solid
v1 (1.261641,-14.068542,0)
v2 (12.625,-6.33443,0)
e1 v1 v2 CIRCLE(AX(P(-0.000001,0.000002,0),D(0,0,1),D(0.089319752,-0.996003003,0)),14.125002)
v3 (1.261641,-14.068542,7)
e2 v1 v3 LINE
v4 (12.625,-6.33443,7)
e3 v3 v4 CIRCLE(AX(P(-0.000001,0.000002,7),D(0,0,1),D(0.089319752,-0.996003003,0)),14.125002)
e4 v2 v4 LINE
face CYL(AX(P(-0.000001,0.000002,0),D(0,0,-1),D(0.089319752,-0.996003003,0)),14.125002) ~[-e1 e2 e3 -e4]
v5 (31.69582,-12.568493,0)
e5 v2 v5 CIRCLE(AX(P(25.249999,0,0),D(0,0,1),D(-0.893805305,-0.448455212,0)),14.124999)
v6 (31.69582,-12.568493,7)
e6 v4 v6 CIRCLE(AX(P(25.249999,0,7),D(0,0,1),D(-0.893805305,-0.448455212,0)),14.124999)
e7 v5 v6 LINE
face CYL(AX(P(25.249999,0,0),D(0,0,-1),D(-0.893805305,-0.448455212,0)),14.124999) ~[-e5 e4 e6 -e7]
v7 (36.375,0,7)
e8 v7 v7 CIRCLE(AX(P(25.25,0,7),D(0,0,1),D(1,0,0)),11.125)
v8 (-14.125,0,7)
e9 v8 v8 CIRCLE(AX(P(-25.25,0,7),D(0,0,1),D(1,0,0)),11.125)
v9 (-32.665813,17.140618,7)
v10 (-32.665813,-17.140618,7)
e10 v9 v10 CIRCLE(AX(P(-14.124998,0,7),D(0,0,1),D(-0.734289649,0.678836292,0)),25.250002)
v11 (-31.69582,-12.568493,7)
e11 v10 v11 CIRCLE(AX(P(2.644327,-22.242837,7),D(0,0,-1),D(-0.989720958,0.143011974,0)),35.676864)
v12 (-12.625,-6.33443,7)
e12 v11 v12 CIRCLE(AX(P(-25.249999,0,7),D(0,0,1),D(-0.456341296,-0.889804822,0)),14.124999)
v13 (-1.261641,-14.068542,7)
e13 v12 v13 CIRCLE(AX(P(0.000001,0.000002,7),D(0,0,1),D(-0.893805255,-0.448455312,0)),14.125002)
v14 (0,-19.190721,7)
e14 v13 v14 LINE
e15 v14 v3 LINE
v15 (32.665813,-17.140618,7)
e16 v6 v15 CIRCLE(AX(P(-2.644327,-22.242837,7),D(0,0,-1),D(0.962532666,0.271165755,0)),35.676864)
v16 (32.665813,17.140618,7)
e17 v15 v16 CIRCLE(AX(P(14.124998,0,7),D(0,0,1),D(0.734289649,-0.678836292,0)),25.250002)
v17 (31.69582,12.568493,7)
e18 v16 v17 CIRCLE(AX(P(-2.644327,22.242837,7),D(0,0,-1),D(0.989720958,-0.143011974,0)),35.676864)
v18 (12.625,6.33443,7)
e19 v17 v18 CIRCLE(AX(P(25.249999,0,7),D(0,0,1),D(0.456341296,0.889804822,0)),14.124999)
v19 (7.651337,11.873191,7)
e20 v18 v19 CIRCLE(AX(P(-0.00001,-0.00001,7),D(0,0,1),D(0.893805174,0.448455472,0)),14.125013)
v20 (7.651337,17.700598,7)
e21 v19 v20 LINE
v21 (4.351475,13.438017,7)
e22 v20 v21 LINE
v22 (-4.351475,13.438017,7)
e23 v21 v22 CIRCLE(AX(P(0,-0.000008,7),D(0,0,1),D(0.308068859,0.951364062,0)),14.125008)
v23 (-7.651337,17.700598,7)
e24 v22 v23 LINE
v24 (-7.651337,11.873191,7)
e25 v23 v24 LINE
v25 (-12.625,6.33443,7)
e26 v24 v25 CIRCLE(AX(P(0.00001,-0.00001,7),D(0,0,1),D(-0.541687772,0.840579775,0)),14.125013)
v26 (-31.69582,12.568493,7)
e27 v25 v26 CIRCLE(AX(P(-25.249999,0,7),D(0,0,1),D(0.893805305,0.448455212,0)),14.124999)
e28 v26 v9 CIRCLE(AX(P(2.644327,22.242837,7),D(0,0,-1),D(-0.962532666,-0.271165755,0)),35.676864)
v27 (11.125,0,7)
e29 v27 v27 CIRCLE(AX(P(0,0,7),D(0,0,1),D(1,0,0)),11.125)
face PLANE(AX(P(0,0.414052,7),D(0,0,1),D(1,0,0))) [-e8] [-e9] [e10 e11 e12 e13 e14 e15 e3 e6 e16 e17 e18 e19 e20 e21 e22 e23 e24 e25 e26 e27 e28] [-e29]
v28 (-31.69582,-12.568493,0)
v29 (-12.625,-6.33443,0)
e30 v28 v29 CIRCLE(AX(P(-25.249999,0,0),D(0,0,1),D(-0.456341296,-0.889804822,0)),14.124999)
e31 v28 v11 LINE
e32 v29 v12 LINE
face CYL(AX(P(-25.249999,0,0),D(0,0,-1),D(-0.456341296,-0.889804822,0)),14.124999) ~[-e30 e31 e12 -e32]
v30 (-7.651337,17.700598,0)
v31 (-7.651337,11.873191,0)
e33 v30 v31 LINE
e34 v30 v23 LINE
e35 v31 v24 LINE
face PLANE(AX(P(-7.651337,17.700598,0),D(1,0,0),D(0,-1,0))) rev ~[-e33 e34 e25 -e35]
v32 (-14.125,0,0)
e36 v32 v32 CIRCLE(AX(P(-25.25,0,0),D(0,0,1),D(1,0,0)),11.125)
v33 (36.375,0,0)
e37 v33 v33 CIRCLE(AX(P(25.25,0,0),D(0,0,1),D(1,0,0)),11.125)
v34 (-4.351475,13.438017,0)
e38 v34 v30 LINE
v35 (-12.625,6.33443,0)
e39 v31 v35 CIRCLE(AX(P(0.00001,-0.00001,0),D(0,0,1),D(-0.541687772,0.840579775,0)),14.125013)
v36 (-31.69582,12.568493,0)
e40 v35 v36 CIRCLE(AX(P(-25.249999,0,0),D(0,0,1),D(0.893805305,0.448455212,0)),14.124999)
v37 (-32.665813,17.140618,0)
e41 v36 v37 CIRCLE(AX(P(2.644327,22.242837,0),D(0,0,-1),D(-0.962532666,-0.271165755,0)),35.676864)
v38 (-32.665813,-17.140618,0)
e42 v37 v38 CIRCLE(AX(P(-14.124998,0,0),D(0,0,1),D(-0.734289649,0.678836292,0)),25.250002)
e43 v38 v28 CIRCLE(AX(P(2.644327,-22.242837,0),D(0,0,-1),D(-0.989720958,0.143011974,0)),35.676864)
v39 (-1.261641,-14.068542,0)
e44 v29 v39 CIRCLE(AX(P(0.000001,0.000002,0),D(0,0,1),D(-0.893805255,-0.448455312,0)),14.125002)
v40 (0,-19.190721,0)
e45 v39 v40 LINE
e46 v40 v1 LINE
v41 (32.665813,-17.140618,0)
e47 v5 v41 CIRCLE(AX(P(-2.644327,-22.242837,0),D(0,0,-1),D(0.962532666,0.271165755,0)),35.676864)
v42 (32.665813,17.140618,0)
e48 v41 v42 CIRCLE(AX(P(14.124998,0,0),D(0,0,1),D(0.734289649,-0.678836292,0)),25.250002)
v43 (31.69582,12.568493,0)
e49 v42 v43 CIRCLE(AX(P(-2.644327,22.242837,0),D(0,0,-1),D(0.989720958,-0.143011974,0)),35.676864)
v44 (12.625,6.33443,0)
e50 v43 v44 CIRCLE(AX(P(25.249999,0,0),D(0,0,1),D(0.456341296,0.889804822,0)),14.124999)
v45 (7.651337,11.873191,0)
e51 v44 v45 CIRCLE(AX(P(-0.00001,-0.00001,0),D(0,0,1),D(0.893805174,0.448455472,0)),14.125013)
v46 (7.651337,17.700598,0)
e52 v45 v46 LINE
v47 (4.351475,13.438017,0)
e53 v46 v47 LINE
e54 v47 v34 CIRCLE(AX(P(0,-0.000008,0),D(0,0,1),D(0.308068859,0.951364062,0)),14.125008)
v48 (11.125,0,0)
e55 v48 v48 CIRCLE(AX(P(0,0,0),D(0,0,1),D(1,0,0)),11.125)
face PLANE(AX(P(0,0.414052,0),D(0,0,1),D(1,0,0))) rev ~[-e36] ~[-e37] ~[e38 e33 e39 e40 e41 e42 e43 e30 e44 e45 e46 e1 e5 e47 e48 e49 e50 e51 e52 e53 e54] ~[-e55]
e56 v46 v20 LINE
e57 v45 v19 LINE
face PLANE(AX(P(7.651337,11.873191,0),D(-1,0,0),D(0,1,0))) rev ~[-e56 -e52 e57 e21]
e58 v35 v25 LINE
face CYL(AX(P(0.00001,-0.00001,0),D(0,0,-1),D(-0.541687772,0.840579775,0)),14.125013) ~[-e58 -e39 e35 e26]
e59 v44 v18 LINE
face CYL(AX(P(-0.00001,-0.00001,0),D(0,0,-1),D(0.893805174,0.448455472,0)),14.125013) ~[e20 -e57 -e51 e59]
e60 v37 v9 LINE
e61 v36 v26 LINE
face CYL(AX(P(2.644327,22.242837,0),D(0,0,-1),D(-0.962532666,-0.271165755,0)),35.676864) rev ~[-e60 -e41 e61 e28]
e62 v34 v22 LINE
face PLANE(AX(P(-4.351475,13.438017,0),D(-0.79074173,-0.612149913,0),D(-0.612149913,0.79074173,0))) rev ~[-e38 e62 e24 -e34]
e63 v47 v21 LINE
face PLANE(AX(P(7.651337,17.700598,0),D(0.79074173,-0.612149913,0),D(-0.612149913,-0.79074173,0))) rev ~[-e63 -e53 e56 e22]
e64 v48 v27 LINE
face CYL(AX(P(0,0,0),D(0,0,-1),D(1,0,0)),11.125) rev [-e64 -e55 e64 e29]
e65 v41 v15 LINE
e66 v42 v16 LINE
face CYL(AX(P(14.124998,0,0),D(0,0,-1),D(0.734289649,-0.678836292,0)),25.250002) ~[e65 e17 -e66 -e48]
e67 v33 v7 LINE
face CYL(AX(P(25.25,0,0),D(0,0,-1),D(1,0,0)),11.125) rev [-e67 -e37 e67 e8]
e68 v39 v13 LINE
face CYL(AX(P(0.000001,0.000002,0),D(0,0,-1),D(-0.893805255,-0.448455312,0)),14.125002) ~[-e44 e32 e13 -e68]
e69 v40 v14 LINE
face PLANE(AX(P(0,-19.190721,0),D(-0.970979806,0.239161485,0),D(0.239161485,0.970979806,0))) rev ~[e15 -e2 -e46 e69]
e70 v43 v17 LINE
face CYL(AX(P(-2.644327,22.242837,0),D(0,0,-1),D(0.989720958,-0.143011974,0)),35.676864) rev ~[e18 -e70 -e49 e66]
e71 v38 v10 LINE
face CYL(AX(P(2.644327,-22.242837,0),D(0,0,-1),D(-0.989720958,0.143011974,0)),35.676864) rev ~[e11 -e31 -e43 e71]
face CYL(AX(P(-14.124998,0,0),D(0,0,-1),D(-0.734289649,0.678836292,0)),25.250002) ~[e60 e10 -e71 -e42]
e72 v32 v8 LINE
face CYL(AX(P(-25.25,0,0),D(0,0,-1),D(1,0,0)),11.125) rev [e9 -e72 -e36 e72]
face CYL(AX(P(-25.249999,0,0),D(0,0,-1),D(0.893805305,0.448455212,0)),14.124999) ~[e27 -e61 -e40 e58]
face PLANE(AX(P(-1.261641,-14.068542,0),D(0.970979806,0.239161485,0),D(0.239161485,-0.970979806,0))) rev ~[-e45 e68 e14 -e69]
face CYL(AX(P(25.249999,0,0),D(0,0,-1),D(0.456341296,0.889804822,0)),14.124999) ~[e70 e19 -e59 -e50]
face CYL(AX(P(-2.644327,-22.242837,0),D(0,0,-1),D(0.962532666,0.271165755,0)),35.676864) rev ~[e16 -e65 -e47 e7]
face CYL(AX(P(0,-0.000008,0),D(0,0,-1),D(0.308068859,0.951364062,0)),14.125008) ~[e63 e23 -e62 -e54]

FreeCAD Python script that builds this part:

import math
import FreeCAD as App
import Part
import Sketcher

V = App.Vector
Q = App.Units.Quantity

doc = App.newDocument("Part")
body = doc.addObject("PartDesign::Body", "Body")

# Sketch on XY plane
sketch1 = body.newObject("Sketcher::SketchObject", "Sketch")
sketch1.AttachmentSupport = (doc.getObject("XY_Plane"), [""])
sketch1.MapMode = "FlatFace"
sketch1.addGeometry(Part.ArcOfCircle(Part.Circle(V(2.644327, 22.242837, 0), V(0, 0, 1), 35.676864), math.radians(-171.777826), math.radians(-164.266352)), False)
sketch1.addGeometry(Part.ArcOfCircle(Part.Circle(V(-14.124998, 0, 0), V(0, 0, 1), 25.250002), math.radians(137.247226), math.radians(222.752774)), False)
sketch1.addGeometry(Part.ArcOfCircle(Part.Circle(V(2.644327, -22.242837, 0), V(0, 0, 1), 35.676864), math.radians(164.266352), math.radians(171.777826)), False)
sketch1.addGeometry(Part.ArcOfCircle(Part.Circle(V(-25.249999, 0, 0), V(0, 0, 1), 14.124999), math.radians(-117.151269), math.radians(-26.644615)), False)
sketch1.addGeometry(Part.ArcOfCircle(Part.Circle(V(0.000001, 0.000002, 0), V(0, 0, 1), 14.125002), math.radians(-153.355379), math.radians(-95.124474)), False)
sketch1.addGeometry(Part.LineSegment(V(-1.261641, -14.068542, 0), V(0, -19.190721, 0)), False)
sketch1.addGeometry(Part.LineSegment(V(0, -19.190721, 0), V(1.261641, -14.068542, 0)), False)
sketch1.addGeometry(Part.ArcOfCircle(Part.Circle(V(-0.000001, 0.000002, 0), V(0, 0, 1), 14.125002), math.radians(-84.875526), math.radians(-26.644621)), False)
sketch1.addGeometry(Part.ArcOfCircle(Part.Circle(V(25.249999, 0, 0), V(0, 0, 1), 14.124999), math.radians(-153.355385), math.radians(-62.848731)), False)
sketch1.addGeometry(Part.ArcOfCircle(Part.Circle(V(-2.644327, -22.242837, 0), V(0, 0, 1), 35.676864), math.radians(8.222174), math.radians(15.733648)), False)
sketch1.addGeometry(Part.ArcOfCircle(Part.Circle(V(14.124998, 0, 0), V(0, 0, 1), 25.250002), math.radians(-42.752774), math.radians(42.752774)), False)
sketch1.addGeometry(Part.ArcOfCircle(Part.Circle(V(-2.644327, 22.242837, 0), V(0, 0, 1), 35.676864), math.radians(-15.733648), math.radians(-8.222174)), False)
sketch1.addGeometry(Part.ArcOfCircle(Part.Circle(V(25.249999, 0, 0), V(0, 0, 1), 14.124999), math.radians(62.848731), math.radians(153.355385)), False)
sketch1.addGeometry(Part.ArcOfCircle(Part.Circle(V(-0.00001, -0.00001, 0), V(0, 0, 1), 14.125013), math.radians(26.644632), math.radians(57.201393)), False)
sketch1.addGeometry(Part.LineSegment(V(7.651337, 11.873191, 0), V(7.651337, 17.700598, 0)), False)
sketch1.addGeometry(Part.LineSegment(V(7.651337, 17.700598, 0), V(4.351475, 13.438017, 0)), False)
sketch1.addGeometry(Part.ArcOfCircle(Part.Circle(V(0, -0.000008, 0), V(0, 0, 1), 14.125008), math.radians(72.057111), math.radians(107.942889)), False)
sketch1.addGeometry(Part.LineSegment(V(-4.351475, 13.438017, 0), V(-7.651337, 17.700598, 0)), False)
sketch1.addGeometry(Part.LineSegment(V(-7.651337, 17.700598, 0), V(-7.651337, 11.873191, 0)), False)
sketch1.addGeometry(Part.ArcOfCircle(Part.Circle(V(0.00001, -0.00001, 0), V(0, 0, 1), 14.125013), math.radians(122.798607), math.radians(153.355368)), False)
sketch1.addGeometry(Part.ArcOfCircle(Part.Circle(V(-25.249999, 0, 0), V(0, 0, 1), 14.124999), math.radians(26.644615), math.radians(117.151269)), False)
sketch1.addGeometry(Part.Circle(V(-25.25, 0, 0), V(0, 0, 1), 11.125), False)
sketch1.addGeometry(Part.Circle(V(0, 0, 0), V(0, 0, 1), 11.125), False)
sketch1.addGeometry(Part.Circle(V(25.25, 0, 0), V(0, 0, 1), 11.125), False)
sketch1.addConstraint(Sketcher.Constraint("Coincident", 0, 1, 1, 1))
sketch1.addConstraint(Sketcher.Constraint("Coincident", 1, 2, 2, 2))
sketch1.addConstraint(Sketcher.Constraint("Coincident", 2, 1, 3, 1))
sketch1.addConstraint(Sketcher.Constraint("Coincident", 3, 2, 4, 1))
sketch1.addConstraint(Sketcher.Constraint("Coincident", 4, 2, 5, 1))
sketch1.addConstraint(Sketcher.Constraint("Coincident", 5, 2, 6, 1))
sketch1.addConstraint(Sketcher.Constraint("Coincident", 6, 2, 7, 1))
sketch1.addConstraint(Sketcher.Constraint("Coincident", 7, 2, 8, 1))
sketch1.addConstraint(Sketcher.Constraint("Coincident", 8, 2, 9, 2))
sketch1.addConstraint(Sketcher.Constraint("Coincident", 9, 1, 10, 1))
sketch1.addConstraint(Sketcher.Constraint("Coincident", 10, 2, 11, 2))
sketch1.addConstraint(Sketcher.Constraint("Coincident", 11, 1, 12, 1))
sketch1.addConstraint(Sketcher.Constraint("Coincident", 12, 2, 13, 1))
sketch1.addConstraint(Sketcher.Constraint("Coincident", 13, 2, 14, 1))
sketch1.addConstraint(Sketcher.Constraint("Coincident", 14, 2, 15, 1))
sketch1.addConstraint(Sketcher.Constraint("Coincident", 15, 2, 16, 1))
sketch1.addConstraint(Sketcher.Constraint("Coincident", 16, 2, 17, 1))
sketch1.addConstraint(Sketcher.Constraint("Coincident", 17, 2, 18, 1))
sketch1.addConstraint(Sketcher.Constraint("Coincident", 18, 2, 19, 1))
sketch1.addConstraint(Sketcher.Constraint("Coincident", 19, 2, 20, 1))
sketch1.addConstraint(Sketcher.Constraint("Coincident", 20, 2, 0, 2))
sketch1.addConstraint(Sketcher.Constraint("Vertical", 14))
sketch1.addConstraint(Sketcher.Constraint("Vertical", 18))
sketch1.addConstraint(Sketcher.Constraint("Coincident", 4, 3, -1, 1))
sketch1.addConstraint(Sketcher.Constraint("Coincident", 7, 3, -1, 1))
sketch1.addConstraint(Sketcher.Constraint("Coincident", 16, 3, -1, 1))
sketch1.addConstraint(Sketcher.Constraint("Coincident", 22, 3, -1, 1))
sketch1.addConstraint(Sketcher.Constraint("Coincident", 12, 3, 8, 3))
sketch1.addConstraint(Sketcher.Constraint("Coincident", 20, 3, 3, 3))
sketch1.addConstraint(Sketcher.Constraint("Coincident", 21, 3, 3, 3))
sketch1.addConstraint(Sketcher.Constraint("Coincident", 23, 3, 8, 3))
sketch1.addConstraint(Sketcher.Constraint("Equal", 0, 2))
sketch1.addConstraint(Sketcher.Constraint("Equal", 4, 7))
sketch1.addConstraint(Sketcher.Constraint("Equal", 3, 8))
sketch1.addConstraint(Sketcher.Constraint("Equal", 2, 9))
sketch1.addConstraint(Sketcher.Constraint("Equal", 1, 10))
sketch1.addConstraint(Sketcher.Constraint("Equal", 9, 11))
sketch1.addConstraint(Sketcher.Constraint("Equal", 8, 12))
sketch1.addConstraint(Sketcher.Constraint("Equal", 13, 19))
sketch1.addConstraint(Sketcher.Constraint("Equal", 12, 20))
sketch1.addConstraint(Sketcher.Constraint("Equal", 21, 22))
sketch1.addConstraint(Sketcher.Constraint("Equal", 22, 23))
sketch1.addConstraint(Sketcher.Constraint("Symmetric", 3, 3, 8, 3, -1, 1))
sketch1.addConstraint(Sketcher.Constraint("Symmetric", 0, 3, 9, 3, -1, 1))
sketch1.addConstraint(Sketcher.Constraint("Symmetric", 1, 3, 10, 3, -1, 1))
sketch1.addConstraint(Sketcher.Constraint("Symmetric", 2, 3, 11, 3, -1, 1))
sketch1.addConstraint(Sketcher.Constraint("Symmetric", 2, 3, 9, 3, -2))
sketch1.addConstraint(Sketcher.Constraint("Symmetric", 13, 3, 19, 3, -2))
sketch1.addConstraint(Sketcher.Constraint("Symmetric", 14, 2, 17, 2, -2))
sketch1.addConstraint(Sketcher.Constraint("Symmetric", 7, 2, 12, 2, -1))
sketch1.addConstraint(Sketcher.Constraint("PointOnObject", 1, 3, -1))
sketch1.addConstraint(Sketcher.Constraint("PointOnObject", 5, 2, -2))
sketch1.addConstraint(Sketcher.Constraint("Horizontal", 13, 3, 16, 3))
sketch1.addConstraint(Sketcher.Constraint("Horizontal", 4, 2, 6, 2))
sketch1.addConstraint(Sketcher.Constraint("Horizontal", 15, 2, 16, 2))
sketch1.addConstraint(Sketcher.Constraint("Diameter", 21, Q("22.25 mm")))
sketch1.addConstraint(Sketcher.Constraint("Radius", 3, Q("14.124999 mm")))
sketch1.addConstraint(Sketcher.Constraint("Radius", 4, Q("14.125002 mm")))
sketch1.addConstraint(Sketcher.Constraint("DistanceX", 3, 3, -1, 1, Q("25.249999 mm")))
sketch1.addConstraint(Sketcher.Constraint("Radius", 0, Q("35.676864 mm")))
sketch1.addConstraint(Sketcher.Constraint("Radius", 1, Q("25.250002 mm")))
sketch1.addConstraint(Sketcher.Constraint("Radius", 13, Q("14.125013 mm")))
sketch1.addConstraint(Sketcher.Constraint("Radius", 16, Q("14.125008 mm")))
sketch1.addConstraint(Sketcher.Constraint("DistanceX", 3, 3, 1, 3, Q("11.125002 mm")))
sketch1.addConstraint(Sketcher.Constraint("DistanceX", 11, 3, 15, 2, Q("6.995802 mm")))
sketch1.addConstraint(Sketcher.Constraint("Distance", 5, Q("5.275268 mm")))
sketch1.addConstraint(Sketcher.Constraint("Distance", 15, Q("5.390611 mm")))
sketch1.addConstraint(Sketcher.Constraint("DistanceY", 14, 1, 14, 2, Q("5.827407 mm")))
sketch1.addConstraint(Sketcher.Constraint("DistanceY", -1, 1, 0, 1, Q("17.140618 mm")))
sketch1.addConstraint(Sketcher.Constraint("DistanceX", 2, 1, -1, 1, Q("31.69582 mm")))
sketch1.addConstraint(Sketcher.Constraint("DistanceX", 4, 2, -1, 1, Q("1.261641 mm")))
pad1 = body.newObject("PartDesign::Pad", "Pad")
pad1.Profile = sketch1
pad1.Length = 7

doc.recompute()
